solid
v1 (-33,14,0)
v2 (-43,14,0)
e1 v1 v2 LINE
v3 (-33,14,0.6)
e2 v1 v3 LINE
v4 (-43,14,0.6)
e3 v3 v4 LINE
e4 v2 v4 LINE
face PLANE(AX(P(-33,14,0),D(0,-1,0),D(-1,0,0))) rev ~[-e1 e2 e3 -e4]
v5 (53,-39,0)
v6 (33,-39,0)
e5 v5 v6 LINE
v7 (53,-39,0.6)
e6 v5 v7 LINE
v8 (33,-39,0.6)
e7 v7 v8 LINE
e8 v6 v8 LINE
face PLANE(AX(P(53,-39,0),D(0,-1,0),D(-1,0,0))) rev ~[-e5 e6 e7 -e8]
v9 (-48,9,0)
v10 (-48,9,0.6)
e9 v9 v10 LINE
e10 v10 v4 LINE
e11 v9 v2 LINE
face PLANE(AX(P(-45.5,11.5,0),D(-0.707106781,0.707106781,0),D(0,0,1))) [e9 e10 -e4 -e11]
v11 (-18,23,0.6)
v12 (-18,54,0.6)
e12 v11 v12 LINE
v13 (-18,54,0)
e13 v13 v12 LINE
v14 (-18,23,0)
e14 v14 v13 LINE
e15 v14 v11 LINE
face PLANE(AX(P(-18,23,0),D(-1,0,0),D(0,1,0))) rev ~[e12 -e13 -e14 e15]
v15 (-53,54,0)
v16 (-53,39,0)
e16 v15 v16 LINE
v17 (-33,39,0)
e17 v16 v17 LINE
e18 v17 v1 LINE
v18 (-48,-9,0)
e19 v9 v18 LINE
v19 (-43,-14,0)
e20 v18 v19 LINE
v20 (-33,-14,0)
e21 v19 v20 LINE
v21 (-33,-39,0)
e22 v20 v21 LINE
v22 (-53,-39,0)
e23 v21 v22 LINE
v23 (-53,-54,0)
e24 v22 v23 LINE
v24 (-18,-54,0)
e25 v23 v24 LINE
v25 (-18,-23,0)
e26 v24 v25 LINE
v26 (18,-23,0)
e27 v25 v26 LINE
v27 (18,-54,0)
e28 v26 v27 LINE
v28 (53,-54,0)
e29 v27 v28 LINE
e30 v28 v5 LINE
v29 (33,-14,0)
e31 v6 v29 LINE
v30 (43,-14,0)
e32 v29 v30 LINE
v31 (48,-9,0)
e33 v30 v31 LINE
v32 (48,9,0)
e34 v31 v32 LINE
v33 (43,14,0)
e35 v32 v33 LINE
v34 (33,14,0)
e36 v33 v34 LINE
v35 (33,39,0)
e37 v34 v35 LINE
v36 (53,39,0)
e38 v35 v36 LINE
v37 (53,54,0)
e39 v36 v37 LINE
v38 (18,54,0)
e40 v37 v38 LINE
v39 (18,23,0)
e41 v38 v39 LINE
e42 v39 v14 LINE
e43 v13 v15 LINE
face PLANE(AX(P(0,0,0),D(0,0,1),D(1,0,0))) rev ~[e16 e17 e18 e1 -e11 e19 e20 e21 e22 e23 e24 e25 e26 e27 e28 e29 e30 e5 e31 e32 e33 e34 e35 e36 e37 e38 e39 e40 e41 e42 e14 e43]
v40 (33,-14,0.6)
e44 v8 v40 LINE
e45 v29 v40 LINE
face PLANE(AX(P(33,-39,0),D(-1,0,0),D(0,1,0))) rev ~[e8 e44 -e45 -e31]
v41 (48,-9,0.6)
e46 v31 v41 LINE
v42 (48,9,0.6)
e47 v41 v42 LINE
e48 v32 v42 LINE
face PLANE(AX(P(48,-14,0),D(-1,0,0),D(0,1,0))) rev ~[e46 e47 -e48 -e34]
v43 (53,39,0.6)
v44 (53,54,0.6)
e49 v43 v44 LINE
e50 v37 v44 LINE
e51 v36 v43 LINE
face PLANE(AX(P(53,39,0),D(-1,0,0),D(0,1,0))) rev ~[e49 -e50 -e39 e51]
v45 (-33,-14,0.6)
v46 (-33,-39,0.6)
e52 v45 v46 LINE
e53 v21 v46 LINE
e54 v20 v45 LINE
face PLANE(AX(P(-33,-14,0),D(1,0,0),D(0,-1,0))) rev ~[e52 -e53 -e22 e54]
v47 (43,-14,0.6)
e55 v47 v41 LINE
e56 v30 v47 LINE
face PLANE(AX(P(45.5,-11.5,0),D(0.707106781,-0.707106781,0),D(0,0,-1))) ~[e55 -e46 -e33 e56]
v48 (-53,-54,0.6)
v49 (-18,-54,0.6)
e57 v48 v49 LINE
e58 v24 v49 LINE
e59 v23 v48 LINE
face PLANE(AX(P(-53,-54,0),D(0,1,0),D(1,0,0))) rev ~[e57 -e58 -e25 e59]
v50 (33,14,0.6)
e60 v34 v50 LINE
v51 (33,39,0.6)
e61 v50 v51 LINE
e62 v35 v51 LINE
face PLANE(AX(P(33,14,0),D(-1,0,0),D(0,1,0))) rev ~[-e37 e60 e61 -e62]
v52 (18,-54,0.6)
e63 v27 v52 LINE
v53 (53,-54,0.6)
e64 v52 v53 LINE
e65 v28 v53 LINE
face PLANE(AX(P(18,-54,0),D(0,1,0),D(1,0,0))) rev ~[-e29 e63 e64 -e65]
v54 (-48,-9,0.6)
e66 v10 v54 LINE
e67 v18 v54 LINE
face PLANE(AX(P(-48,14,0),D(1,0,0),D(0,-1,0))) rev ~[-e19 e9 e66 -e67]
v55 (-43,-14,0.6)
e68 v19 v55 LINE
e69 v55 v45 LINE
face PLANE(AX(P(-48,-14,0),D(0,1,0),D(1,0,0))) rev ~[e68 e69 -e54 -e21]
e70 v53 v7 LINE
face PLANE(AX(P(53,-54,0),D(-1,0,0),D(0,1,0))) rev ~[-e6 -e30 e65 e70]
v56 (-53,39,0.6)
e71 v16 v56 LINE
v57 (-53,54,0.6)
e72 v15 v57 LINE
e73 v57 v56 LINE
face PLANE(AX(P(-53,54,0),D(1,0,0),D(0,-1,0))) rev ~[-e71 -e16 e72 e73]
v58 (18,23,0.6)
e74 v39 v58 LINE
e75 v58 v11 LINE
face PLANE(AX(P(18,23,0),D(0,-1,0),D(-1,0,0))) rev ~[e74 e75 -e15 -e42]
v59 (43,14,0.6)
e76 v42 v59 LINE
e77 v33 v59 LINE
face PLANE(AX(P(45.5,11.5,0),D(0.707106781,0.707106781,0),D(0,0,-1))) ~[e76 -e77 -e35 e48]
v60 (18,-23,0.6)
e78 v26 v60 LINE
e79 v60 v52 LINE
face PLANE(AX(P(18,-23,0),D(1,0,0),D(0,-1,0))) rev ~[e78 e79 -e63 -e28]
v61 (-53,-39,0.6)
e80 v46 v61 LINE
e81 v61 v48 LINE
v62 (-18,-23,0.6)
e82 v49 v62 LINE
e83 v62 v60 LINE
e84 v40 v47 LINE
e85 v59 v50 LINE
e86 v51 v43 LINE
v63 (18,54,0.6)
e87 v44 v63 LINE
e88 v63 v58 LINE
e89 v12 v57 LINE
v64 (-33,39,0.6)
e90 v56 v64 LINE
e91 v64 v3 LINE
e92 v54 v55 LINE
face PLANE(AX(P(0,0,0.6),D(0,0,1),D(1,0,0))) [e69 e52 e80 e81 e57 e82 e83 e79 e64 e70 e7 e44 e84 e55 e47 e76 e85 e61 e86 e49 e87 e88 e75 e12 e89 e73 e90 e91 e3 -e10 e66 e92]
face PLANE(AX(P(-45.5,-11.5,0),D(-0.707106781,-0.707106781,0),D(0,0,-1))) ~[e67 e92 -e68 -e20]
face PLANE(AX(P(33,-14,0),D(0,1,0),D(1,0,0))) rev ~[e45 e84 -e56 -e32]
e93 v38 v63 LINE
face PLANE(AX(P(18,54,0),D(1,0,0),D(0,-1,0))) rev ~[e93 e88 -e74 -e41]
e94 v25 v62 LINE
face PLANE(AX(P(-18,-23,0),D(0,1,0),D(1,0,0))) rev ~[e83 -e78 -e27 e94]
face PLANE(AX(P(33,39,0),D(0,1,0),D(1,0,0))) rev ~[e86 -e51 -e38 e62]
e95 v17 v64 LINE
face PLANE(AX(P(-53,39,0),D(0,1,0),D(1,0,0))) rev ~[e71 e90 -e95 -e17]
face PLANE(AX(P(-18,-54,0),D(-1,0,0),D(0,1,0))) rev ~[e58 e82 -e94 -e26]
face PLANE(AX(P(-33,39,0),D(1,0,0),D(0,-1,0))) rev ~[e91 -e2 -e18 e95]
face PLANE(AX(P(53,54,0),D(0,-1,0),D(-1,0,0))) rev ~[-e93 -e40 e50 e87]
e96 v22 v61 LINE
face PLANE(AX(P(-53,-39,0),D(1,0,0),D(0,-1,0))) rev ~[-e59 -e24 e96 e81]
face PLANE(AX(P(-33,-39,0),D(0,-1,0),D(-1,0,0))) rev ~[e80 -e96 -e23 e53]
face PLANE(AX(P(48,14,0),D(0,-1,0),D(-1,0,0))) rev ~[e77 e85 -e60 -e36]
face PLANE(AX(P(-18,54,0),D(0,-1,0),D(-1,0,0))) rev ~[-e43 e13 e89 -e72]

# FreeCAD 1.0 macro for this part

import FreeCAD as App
import Part
import Sketcher

V = App.Vector
Q = App.Units.Quantity


def edges_at(feature, points):
    """Names of the edges that pass closest to the given points."""
    edges = feature.Shape.Edges
    near = lambda p: min(range(len(edges)), key=lambda i: edges[i].distToShape(Part.Vertex(*p))[0])
    return sorted({f"Edge{near(p) + 1}" for p in points})


def add_polygon(sketch, points):
    """Adds a closed chain of lines whose ends are joined by coincident constraints."""
    first, n = sketch.GeometryCount, len(points)
    for a, b in zip(points, points[1:] + points[:1]):
        sketch.addGeometry(Part.LineSegment(App.Vector(*a, 0), App.Vector(*b, 0)), False)
    for i in range(n):
        sketch.addConstraint(Sketcher.Constraint("Coincident", first + i, 2, first + (i + 1) % n, 1))

doc = App.newDocument("Part")
params = doc.addObject("Spreadsheet::Sheet", "Params")
for row, (alias, value) in enumerate([
    ("sketch1_width", "15 mm"),
    ("sketch1_width2", "20 mm"),
    ("sketch1_width3", "35 mm"),
    ("sketch1_width4", "36 mm"),
    ("sketch1_height", "28 mm"),
    ("pad1_length", "0.6 mm"),
    ("chamfer_size", "5 mm"),
], start=1):
    params.set(f"A{row}", alias)
    params.set(f"B{row}", "=" + value)
    params.setAlias(f"B{row}", alias)

body = doc.addObject("PartDesign::Body", "Body")

# Sketch on XY plane
sketch1 = body.newObject("Sketcher::SketchObject", "Sketch")
sketch1.AttachmentSupport = (doc.getObject("XY_Plane"), [""])
sketch1.MapMode = "FlatFace"
add_polygon(sketch1, [(-48, 14), (-48, -14), (-33, -14), (-33, -39), (-53, -39), (-53, -54), (-18, -54), (-18, -23), (18, -23), (18, -54), (53, -54), (53, -39), (33, -39), (33, -14), (48, -14), (48, 14), (33, 14), (33, 39), (53, 39), (53, 54), (18, 54), (18, 23), (-18, 23), (-18, 54), (-53, 54), (-53, 39), (-33, 39), (-33, 14)])  # lines 0-27
sketch1.addConstraint(Sketcher.Constraint("Vertical", 0))
sketch1.addConstraint(Sketcher.Constraint("Horizontal", 1))
sketch1.addConstraint(Sketcher.Constraint("Vertical", 2))
sketch1.addConstraint(Sketcher.Constraint("Horizontal", 3))
sketch1.addConstraint(Sketcher.Constraint("Vertical", 4))
sketch1.addConstraint(Sketcher.Constraint("Horizontal", 5))
sketch1.addConstraint(Sketcher.Constraint("Vertical", 6))
sketch1.addConstraint(Sketcher.Constraint("Horizontal", 7))
sketch1.addConstraint(Sketcher.Constraint("Vertical", 8))
sketch1.addConstraint(Sketcher.Constraint("Horizontal", 9))
sketch1.addConstraint(Sketcher.Constraint("Vertical", 10))
sketch1.addConstraint(Sketcher.Constraint("Horizontal", 11))
sketch1.addConstraint(Sketcher.Constraint("Vertical", 12))
sketch1.addConstraint(Sketcher.Constraint("Horizontal", 13))
sketch1.addConstraint(Sketcher.Constraint("Vertical", 14))
sketch1.addConstraint(Sketcher.Constraint("Horizontal", 15))
sketch1.addConstraint(Sketcher.Constraint("Vertical", 16))
sketch1.addConstraint(Sketcher.Constraint("Horizontal", 17))
sketch1.addConstraint(Sketcher.Constraint("Vertical", 18))
sketch1.addConstraint(Sketcher.Constraint("Horizontal", 19))
sketch1.addConstraint(Sketcher.Constraint("Vertical", 20))
sketch1.addConstraint(Sketcher.Constraint("Horizontal", 21))
sketch1.addConstraint(Sketcher.Constraint("Vertical", 22))
sketch1.addConstraint(Sketcher.Constraint("Horizontal", 23))
sketch1.addConstraint(Sketcher.Constraint("Vertical", 24))
sketch1.addConstraint(Sketcher.Constraint("Horizontal", 25))
sketch1.addConstraint(Sketcher.Constraint("Vertical", 26))
sketch1.addConstraint(Sketcher.Constraint("Horizontal", 27))
sketch1.addConstraint(Sketcher.Constraint("Symmetric", 0, 2, 14, 2, -1, 1))
sketch1.addConstraint(Sketcher.Constraint("Symmetric", 2, 2, 16, 2, -1, 1))
sketch1.addConstraint(Sketcher.Constraint("Symmetric", 4, 2, 18, 2, -1, 1))
sketch1.addConstraint(Sketcher.Constraint("Symmetric", 6, 2, 20, 2, -1, 1))
sketch1.addConstraint(Sketcher.Constraint("Symmetric", 8, 2, 22, 2, -1, 1))
sketch1.addConstraint(Sketcher.Constraint("Symmetric", 10, 2, 24, 2, -1, 1))
sketch1.addConstraint(Sketcher.Constraint("Symmetric", 12, 2, 26, 2, -1, 1))
sketch1.addConstraint(Sketcher.Constraint("Symmetric", 5, 2, 8, 2, -2))
sketch1.addConstraint(Sketcher.Constraint("Symmetric", 3, 2, 10, 2, -2))
sketch1.addConstraint(Sketcher.Constraint("Symmetric", 1, 2, 12, 2, -2))
sketch1.addConstraint(Sketcher.Constraint("Equal", 27, 4))
sketch1.addConstraint(Sketcher.Constraint("DistanceX", 1, 1, 1, 2, Q("15 mm")))
sketch1.addConstraint(Sketcher.Constraint("DistanceX", 3, 2, 3, 1, Q("20 mm")))
sketch1.addConstraint(Sketcher.Constraint("DistanceX", 5, 1, 5, 2, Q("35 mm")))
sketch1.addConstraint(Sketcher.Constraint("DistanceX", 7, 1, 7, 2, Q("36 mm")))
sketch1.addConstraint(Sketcher.Constraint("DistanceY", 0, 2, 0, 1, Q("28 mm")))
sketch1.addConstraint(Sketcher.Constraint("DistanceY", 2, 2, 2, 1, Q("25 mm")))
sketch1.addConstraint(Sketcher.Constraint("DistanceY", 6, 1, 6, 2, Q("31 mm")))
sketch1.setExpression("Constraints[67]", "Params.sketch1_width")
sketch1.setExpression("Constraints[68]", "Params.sketch1_width2")
sketch1.setExpression("Constraints[69]", "Params.sketch1_width3")
sketch1.setExpression("Constraints[70]", "Params.sketch1_width4")
sketch1.setExpression("Constraints[71]", "Params.sketch1_height")
pad1 = body.newObject("PartDesign::Pad", "Pad")
pad1.Profile = sketch1
pad1.setExpression("Length", "Params.pad1_length")
doc.recompute()

chamfer = body.newObject("PartDesign::Chamfer", "Chamfer")
chamfer.Base = (pad1, edges_at(pad1, [
    (-48, 14, 0.3),
    (-48, -14, 0.3),
    (48, 14, 0.3),
    (48, -14, 0.3),
]))
chamfer.setExpression("Size", "Params.chamfer_size")

doc.recompute()
